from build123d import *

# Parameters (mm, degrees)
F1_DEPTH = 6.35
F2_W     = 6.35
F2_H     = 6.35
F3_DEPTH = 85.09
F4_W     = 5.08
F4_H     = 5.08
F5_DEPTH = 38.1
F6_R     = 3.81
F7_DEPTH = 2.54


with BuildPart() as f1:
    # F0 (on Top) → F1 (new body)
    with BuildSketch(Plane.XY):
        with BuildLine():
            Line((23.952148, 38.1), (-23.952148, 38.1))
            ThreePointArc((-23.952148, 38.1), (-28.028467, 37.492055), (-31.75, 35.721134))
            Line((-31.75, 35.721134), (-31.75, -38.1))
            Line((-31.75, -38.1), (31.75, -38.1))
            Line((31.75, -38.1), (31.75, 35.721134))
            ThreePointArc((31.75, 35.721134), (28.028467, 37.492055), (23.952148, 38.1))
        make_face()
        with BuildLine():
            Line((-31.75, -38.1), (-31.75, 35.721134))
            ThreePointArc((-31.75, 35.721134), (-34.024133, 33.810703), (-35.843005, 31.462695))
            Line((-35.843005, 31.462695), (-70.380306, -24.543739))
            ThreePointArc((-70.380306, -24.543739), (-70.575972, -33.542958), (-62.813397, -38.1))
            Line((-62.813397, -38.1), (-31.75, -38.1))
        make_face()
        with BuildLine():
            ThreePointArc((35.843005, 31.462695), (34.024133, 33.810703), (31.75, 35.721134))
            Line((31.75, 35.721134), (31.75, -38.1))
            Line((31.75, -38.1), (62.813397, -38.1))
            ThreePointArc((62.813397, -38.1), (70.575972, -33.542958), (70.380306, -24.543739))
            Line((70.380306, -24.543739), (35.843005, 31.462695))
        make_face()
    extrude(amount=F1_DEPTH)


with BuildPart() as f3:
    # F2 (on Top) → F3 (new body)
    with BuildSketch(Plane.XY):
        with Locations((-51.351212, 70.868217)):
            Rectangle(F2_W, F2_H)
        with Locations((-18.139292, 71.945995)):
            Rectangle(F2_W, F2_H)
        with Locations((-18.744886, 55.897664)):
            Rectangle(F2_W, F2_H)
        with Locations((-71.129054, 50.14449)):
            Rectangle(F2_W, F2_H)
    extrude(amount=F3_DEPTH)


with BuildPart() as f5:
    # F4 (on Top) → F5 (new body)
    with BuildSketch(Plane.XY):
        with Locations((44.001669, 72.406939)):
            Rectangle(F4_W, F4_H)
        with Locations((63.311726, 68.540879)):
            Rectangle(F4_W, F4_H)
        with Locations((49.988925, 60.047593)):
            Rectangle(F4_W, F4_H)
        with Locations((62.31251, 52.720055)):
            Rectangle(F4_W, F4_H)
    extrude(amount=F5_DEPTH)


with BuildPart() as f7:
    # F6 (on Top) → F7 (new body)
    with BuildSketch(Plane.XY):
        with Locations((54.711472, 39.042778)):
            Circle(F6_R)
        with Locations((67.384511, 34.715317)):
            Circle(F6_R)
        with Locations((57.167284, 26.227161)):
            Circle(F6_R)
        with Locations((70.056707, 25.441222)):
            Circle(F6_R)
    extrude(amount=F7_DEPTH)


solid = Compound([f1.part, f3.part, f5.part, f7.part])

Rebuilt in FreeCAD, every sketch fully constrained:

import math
import FreeCAD as App
import Part
import Sketcher
Q = App.Units.Quantity

doc = App.newDocument("Part")
params = doc.addObject("Spreadsheet::Sheet", "Params")
for row, (alias, value) in enumerate([
    ("sketch1_radius", "0.55 in"),
    ("sketch1_radius2", "0.35 in"),
    ("pad1_length", "0.25 in"),
    ("sketch2_width", "0.25 in"),
    ("pad2_length", "3.35 in"),
    ("sketch3_width", "0.2 in"),
    ("pad3_length", "1.5 in"),
    ("sketch4_diameter", "0.3 in"),
    ("pad4_length", "0.1 in"),
], start=1):
    params.set(f"A{row}", alias)
    params.set(f"B{row}", "=" + value)
    params.setAlias(f"B{row}", alias)

body = doc.addObject("PartDesign::Body", "Body")

sketch1 = body.newObject("Sketcher::SketchObject", "Sketch")
sketch1.AttachmentSupport = (doc.getObject("XY_Plane"), [""])
sketch1.MapMode = "FlatFace"
sketch1.addGeometry(Part.LineSegment(App.Vector(24, 38, 0), App.Vector(-24, 38, 0)), False)
sketch1.addGeometry(Part.ArcOfCircle(Part.Circle(App.Vector(-24, 24, 0), App.Vector(0, 0, 1), 14), math.radians(90), math.radians(124)), False)
sketch1.addGeometry(Part.ArcOfCircle(Part.Circle(App.Vector(-24, 24, 0), App.Vector(0, 0, 1), 14), math.radians(124), math.radians(148)), False)
sketch1.addGeometry(Part.LineSegment(App.Vector(-36, 31, 0), App.Vector(-70, -25, 0)), False)
sketch1.addGeometry(Part.ArcOfCircle(Part.Circle(App.Vector(-63, -29, 0), App.Vector(0, 0, 1), 9), math.radians(148), math.radians(270)), False)
sketch1.addGeometry(Part.LineSegment(App.Vector(-63, -38, 0), App.Vector(63, -38, 0)), False)
sketch1.addGeometry(Part.ArcOfCircle(Part.Circle(App.Vector(63, -29, 0), App.Vector(0, 0, 1), 9), math.radians(-90), math.radians(32)), False)
sketch1.addGeometry(Part.LineSegment(App.Vector(70, -25, 0), App.Vector(36, 31, 0)), False)
sketch1.addGeometry(Part.ArcOfCircle(Part.Circle(App.Vector(24, 24, 0), App.Vector(0, 0, 1), 14), math.radians(32), math.radians(56)), False)
sketch1.addGeometry(Part.ArcOfCircle(Part.Circle(App.Vector(24, 24, 0), App.Vector(0, 0, 1), 14), math.radians(56), math.radians(90)), False)
sketch1.addConstraint(Sketcher.Constraint("Tangent", 0, 2, 1, 1))
sketch1.addConstraint(Sketcher.Constraint("Tangent", 1, 2, 2, 1))
sketch1.addConstraint(Sketcher.Constraint("Tangent", 2, 2, 3, 1))
sketch1.addConstraint(Sketcher.Constraint("Tangent", 3, 2, 4, 1))
sketch1.addConstraint(Sketcher.Constraint("Tangent", 4, 2, 5, 1))
sketch1.addConstraint(Sketcher.Constraint("Tangent", 5, 2, 6, 1))
sketch1.addConstraint(Sketcher.Constraint("Tangent", 6, 2, 7, 1))
sketch1.addConstraint(Sketcher.Constraint("Tangent", 7, 2, 8, 1))
sketch1.addConstraint(Sketcher.Constraint("Tangent", 8, 2, 9, 1))
sketch1.addConstraint(Sketcher.Constraint("Tangent", 9, 2, 0, 1))
sketch1.addConstraint(Sketcher.Constraint("Horizontal", 0))
sketch1.addConstraint(Sketcher.Constraint("Horizontal", 5))
sketch1.addConstraint(Sketcher.Constraint("Equal", 4, 6))
sketch1.addConstraint(Sketcher.Constraint("Equal", 2, 8))
sketch1.addConstraint(Sketcher.Constraint("Equal", 1, 9))
sketch1.addConstraint(Sketcher.Constraint("Symmetric", 1, 3, 8, 3, -2))
sketch1.addConstraint(Sketcher.Constraint("Horizontal", 3, 2, 6, 2))
sketch1.addConstraint(Sketcher.Constraint("Horizontal", 1, 2, 8, 2))
sketch1.addConstraint(Sketcher.Constraint("Radius", 1, Q("0.55 in")))
sketch1.addConstraint(Sketcher.Constraint("Radius", 4, Q("0.35 in")))
sketch1.addConstraint(Sketcher.Constraint("DistanceY", -1, 1, 0, 2, Q("1.5 in")))
sketch1.addConstraint(Sketcher.Constraint("DistanceY", 4, 2, -1, 1, Q("1.5 in")))
sketch1.addConstraint(Sketcher.Constraint("DistanceX", 1, 2, -1, 1, Q("1.25 in")))
sketch1.addConstraint(Sketcher.Constraint("DistanceX", 1, 3, 8, 3, 47.904299))
sketch1.addConstraint(Sketcher.Constraint("DistanceX", 3, 2, 2, 2, 34.537301))
sketch1.setExpression("Constraints[18]", "Params.sketch1_radius")
sketch1.setExpression("Constraints[19]", "Params.sketch1_radius2")
pad1 = body.newObject("PartDesign::Pad", "Pad")
pad1.Profile = sketch1
pad1.setExpression("Length", "Params.pad1_length")
body2 = doc.addObject("PartDesign::Body", "Body001")
body2.AllowCompound = True

sketch2 = body2.newObject("Sketcher::SketchObject", "Sketch001")
sketch2.AttachmentSupport = (doc.getObject("XY_Plane001"), [""])
sketch2.MapMode = "FlatFace"
sketch2.addGeometry(Part.LineSegment(App.Vector(-55, 74, 0), App.Vector(-55, 68, 0)), False)
sketch2.addGeometry(Part.LineSegment(App.Vector(-55, 68, 0), App.Vector(-48, 68, 0)), False)
sketch2.addGeometry(Part.LineSegment(App.Vector(-48, 68, 0), App.Vector(-48, 74, 0)), False)
sketch2.addGeometry(Part.LineSegment(App.Vector(-48, 74, 0), App.Vector(-55, 74, 0)), False)
sketch2.addGeometry(Part.LineSegment(App.Vector(-21, 75, 0), App.Vector(-21, 69, 0)), False)
sketch2.addGeometry(Part.LineSegment(App.Vector(-21, 69, 0), App.Vector(-15, 69, 0)), False)
sketch2.addGeometry(Part.LineSegment(App.Vector(-15, 69, 0), App.Vector(-15, 75, 0)), False)
sketch2.addGeometry(Part.LineSegment(App.Vector(-15, 75, 0), App.Vector(-21, 75, 0)), False)
sketch2.addGeometry(Part.LineSegment(App.Vector(-22, 59, 0), App.Vector(-22, 53, 0)), False)
sketch2.addGeometry(Part.LineSegment(App.Vector(-22, 53, 0), App.Vector(-16, 53, 0)), False)
sketch2.addGeometry(Part.LineSegment(App.Vector(-16, 53, 0), App.Vector(-16, 59, 0)), False)
sketch2.addGeometry(Part.LineSegment(App.Vector(-16, 59, 0), App.Vector(-22, 59, 0)), False)
sketch2.addGeometry(Part.LineSegment(App.Vector(-74, 53, 0), App.Vector(-74, 47, 0)), False)
sketch2.addGeometry(Part.LineSegment(App.Vector(-74, 47, 0), App.Vector(-68, 47, 0)), False)
sketch2.addGeometry(Part.LineSegment(App.Vector(-68, 47, 0), App.Vector(-68, 53, 0)), False)
sketch2.addGeometry(Part.LineSegment(App.Vector(-68, 53, 0), App.Vector(-74, 53, 0)), False)
sketch2.addConstraint(Sketcher.Constraint("Coincident", 0, 2, 1, 1))
sketch2.addConstraint(Sketcher.Constraint("Coincident", 1, 2, 2, 1))
sketch2.addConstraint(Sketcher.Constraint("Coincident", 2, 2, 3, 1))
sketch2.addConstraint(Sketcher.Constraint("Coincident", 3, 2, 0, 1))
sketch2.addConstraint(Sketcher.Constraint("Coincident", 4, 2, 5, 1))
sketch2.addConstraint(Sketcher.Constraint("Coincident", 5, 2, 6, 1))
sketch2.addConstraint(Sketcher.Constraint("Coincident", 6, 2, 7, 1))
sketch2.addConstraint(Sketcher.Constraint("Coincident", 7, 2, 4, 1))
sketch2.addConstraint(Sketcher.Constraint("Coincident", 8, 2, 9, 1))
sketch2.addConstraint(Sketcher.Constraint("Coincident", 9, 2, 10, 1))
sketch2.addConstraint(Sketcher.Constraint("Coincident", 10, 2, 11, 1))
sketch2.addConstraint(Sketcher.Constraint("Coincident", 11, 2, 8, 1))
sketch2.addConstraint(Sketcher.Constraint("Coincident", 12, 2, 13, 1))
sketch2.addConstraint(Sketcher.Constraint("Coincident", 13, 2, 14, 1))
sketch2.addConstraint(Sketcher.Constraint("Coincident", 14, 2, 15, 1))
sketch2.addConstraint(Sketcher.Constraint("Coincident", 15, 2, 12, 1))
sketch2.addConstraint(Sketcher.Constraint("Vertical", 0))
sketch2.addConstraint(Sketcher.Constraint("Horizontal", 1))
sketch2.addConstraint(Sketcher.Constraint("Vertical", 2))
sketch2.addConstraint(Sketcher.Constraint("Horizontal", 3))
sketch2.addConstraint(Sketcher.Constraint("Vertical", 4))
sketch2.addConstraint(Sketcher.Constraint("Horizontal", 5))
sketch2.addConstraint(Sketcher.Constraint("Vertical", 6))
sketch2.addConstraint(Sketcher.Constraint("Horizontal", 7))
sketch2.addConstraint(Sketcher.Constraint("Vertical", 8))
sketch2.addConstraint(Sketcher.Constraint("Horizontal", 9))
sketch2.addConstraint(Sketcher.Constraint("Vertical", 10))
sketch2.addConstraint(Sketcher.Constraint("Horizontal", 11))
sketch2.addConstraint(Sketcher.Constraint("Vertical", 12))
sketch2.addConstraint(Sketcher.Constraint("Horizontal", 13))
sketch2.addConstraint(Sketcher.Constraint("Vertical", 14))
sketch2.addConstraint(Sketcher.Constraint("Horizontal", 15))
sketch2.addConstraint(Sketcher.Constraint("Equal", 3, 5))
sketch2.addConstraint(Sketcher.Constraint("Equal", 7, 9))
sketch2.addConstraint(Sketcher.Constraint("Equal", 11, 13))
sketch2.addConstraint(Sketcher.Constraint("Equal", 15, 0))
sketch2.addConstraint(Sketcher.Constraint("Equal", 2, 4))
sketch2.addConstraint(Sketcher.Constraint("Equal", 6, 8))
sketch2.addConstraint(Sketcher.Constraint("Equal", 10, 12))
sketch2.addConstraint(Sketcher.Constraint("DistanceX", 1, 1, 1, 2, Q("0.25 in")))
sketch2.addConstraint(Sketcher.Constraint("DistanceX", 4, 2, -1, 1, 21.314292))
sketch2.addConstraint(Sketcher.Constraint("DistanceY", -1, 1, 12, 2, 46.96949))
sketch2.addConstraint(Sketcher.Constraint("DistanceX", 1, 2, 4, 2, 26.86192))
sketch2.addConstraint(Sketcher.Constraint("DistanceY", 4, 2, 2, 2, 5.272222))
sketch2.addConstraint(Sketcher.Constraint("DistanceY", 8, 2, 4, 2, 16.048331))
sketch2.addConstraint(Sketcher.Constraint("DistanceX", 12, 2, 0, 2, 19.777842))
sketch2.addConstraint(Sketcher.Constraint("DistanceY", -1, 1, 0, 2, 67.693217))
sketch2.addConstraint(Sketcher.Constraint("DistanceX", 8, 2, -1, 1, 21.919886))
sketch2.setExpression("Constraints[39]", "Params.sketch2_width")
pad2 = body2.newObject("PartDesign::Pad", "Pad001")
pad2.Profile = sketch2
pad2.setExpression("Length", "Params.pad2_length")
body3 = doc.addObject("PartDesign::Body", "Body002")
body3.AllowCompound = True

sketch3 = body3.newObject("Sketcher::SketchObject", "Sketch002")
sketch3.AttachmentSupport = (doc.getObject("XY_Plane002"), [""])
sketch3.MapMode = "FlatFace"
sketch3.addGeometry(Part.LineSegment(App.Vector(41, 75, 0), App.Vector(41, 70, 0)), False)
sketch3.addGeometry(Part.LineSegment(App.Vector(41, 70, 0), App.Vector(47, 70, 0)), False)
sketch3.addGeometry(Part.LineSegment(App.Vector(47, 70, 0), App.Vector(47, 75, 0)), False)
sketch3.addGeometry(Part.LineSegment(App.Vector(47, 75, 0), App.Vector(41, 75, 0)), False)
sketch3.addGeometry(Part.LineSegment(App.Vector(61, 71, 0), App.Vector(61, 66, 0)), False)
sketch3.addGeometry(Part.LineSegment(App.Vector(61, 66, 0), App.Vector(66, 66, 0)), False)
sketch3.addGeometry(Part.LineSegment(App.Vector(66, 66, 0), App.Vector(66, 71, 0)), False)
sketch3.addGeometry(Part.LineSegment(App.Vector(66, 71, 0), App.Vector(61, 71, 0)), False)
sketch3.addGeometry(Part.LineSegment(App.Vector(47, 63, 0), App.Vector(47, 58, 0)), False)
sketch3.addGeometry(Part.LineSegment(App.Vector(47, 58, 0), App.Vector(53, 58, 0)), False)
sketch3.addGeometry(Part.LineSegment(App.Vector(53, 58, 0), App.Vector(53, 63, 0)), False)
sketch3.addGeometry(Part.LineSegment(App.Vector(53, 63, 0), App.Vector(47, 63, 0)), False)
sketch3.addGeometry(Part.LineSegment(App.Vector(60, 55, 0), App.Vector(60, 50, 0)), False)
sketch3.addGeometry(Part.LineSegment(App.Vector(60, 50, 0), App.Vector(65, 50, 0)), False)
sketch3.addGeometry(Part.LineSegment(App.Vector(65, 50, 0), App.Vector(65, 55, 0)), False)
sketch3.addGeometry(Part.LineSegment(App.Vector(65, 55, 0), App.Vector(60, 55, 0)), False)
sketch3.addConstraint(Sketcher.Constraint("Coincident", 0, 2, 1, 1))
sketch3.addConstraint(Sketcher.Constraint("Coincident", 1, 2, 2, 1))
sketch3.addConstraint(Sketcher.Constraint("Coincident", 2, 2, 3, 1))
sketch3.addConstraint(Sketcher.Constraint("Coincident", 3, 2, 0, 1))
sketch3.addConstraint(Sketcher.Constraint("Coincident", 4, 2, 5, 1))
sketch3.addConstraint(Sketcher.Constraint("Coincident", 5, 2, 6, 1))
sketch3.addConstraint(Sketcher.Constraint("Coincident", 6, 2, 7, 1))
sketch3.addConstraint(Sketcher.Constraint("Coincident", 7, 2, 4, 1))
sketch3.addConstraint(Sketcher.Constraint("Coincident", 8, 2, 9, 1))
sketch3.addConstraint(Sketcher.Constraint("Coincident", 9, 2, 10, 1))
sketch3.addConstraint(Sketcher.Constraint("Coincident", 10, 2, 11, 1))
sketch3.addConstraint(Sketcher.Constraint("Coincident", 11, 2, 8, 1))
sketch3.addConstraint(Sketcher.Constraint("Coincident", 12, 2, 13, 1))
sketch3.addConstraint(Sketcher.Constraint("Coincident", 13, 2, 14, 1))
sketch3.addConstraint(Sketcher.Constraint("Coincident", 14, 2, 15, 1))
sketch3.addConstraint(Sketcher.Constraint("Coincident", 15, 2, 12, 1))
sketch3.addConstraint(Sketcher.Constraint("Vertical", 0))
sketch3.addConstraint(Sketcher.Constraint("Horizontal", 1))
sketch3.addConstraint(Sketcher.Constraint("Vertical", 2))
sketch3.addConstraint(Sketcher.Constraint("Horizontal", 3))
sketch3.addConstraint(Sketcher.Constraint("Vertical", 4))
sketch3.addConstraint(Sketcher.Constraint("Horizontal", 5))
sketch3.addConstraint(Sketcher.Constraint("Vertical", 6))
sketch3.addConstraint(Sketcher.Constraint("Horizontal", 7))
sketch3.addConstraint(Sketcher.Constraint("Vertical", 8))
sketch3.addConstraint(Sketcher.Constraint("Horizontal", 9))
sketch3.addConstraint(Sketcher.Constraint("Vertical", 10))
sketch3.addConstraint(Sketcher.Constraint("Horizontal", 11))
sketch3.addConstraint(Sketcher.Constraint("Vertical", 12))
sketch3.addConstraint(Sketcher.Constraint("Horizontal", 13))
sketch3.addConstraint(Sketcher.Constraint("Vertical", 14))
sketch3.addConstraint(Sketcher.Constraint("Horizontal", 15))
sketch3.addConstraint(Sketcher.Constraint("Equal", 3, 5))
sketch3.addConstraint(Sketcher.Constraint("Equal", 7, 9))
sketch3.addConstraint(Sketcher.Constraint("Equal", 11, 13))
sketch3.addConstraint(Sketcher.Constraint("Equal", 15, 0))
sketch3.addConstraint(Sketcher.Constraint("Equal", 2, 4))
sketch3.addConstraint(Sketcher.Constraint("Equal", 6, 8))
sketch3.addConstraint(Sketcher.Constraint("Equal", 10, 12))
sketch3.addConstraint(Sketcher.Constraint("DistanceX", 1, 1, 1, 2, Q("0.2 in")))
sketch3.addConstraint(Sketcher.Constraint("DistanceX", 8, 2, 4, 2, 13.322801))
sketch3.addConstraint(Sketcher.Constraint("DistanceX", -1, 1, 0, 2, 41.461669))
sketch3.addConstraint(Sketcher.Constraint("DistanceY", -1, 1, 0, 2, 69.866939))
sketch3.addConstraint(Sketcher.Constraint("DistanceY", -1, 1, 4, 2, 66.000879))
sketch3.addConstraint(Sketcher.Constraint("DistanceX", -1, 1, 12, 2, 59.77251))
sketch3.addConstraint(Sketcher.Constraint("DistanceX", -1, 1, 4, 2, 60.771726))
sketch3.addConstraint(Sketcher.Constraint("DistanceY", -1, 1, 8, 2, 57.507593))
sketch3.addConstraint(Sketcher.Constraint("DistanceY", -1, 1, 12, 2, 50.180055))
sketch3.setExpression("Constraints[39]", "Params.sketch3_width")
pad3 = body3.newObject("PartDesign::Pad", "Pad002")
pad3.Profile = sketch3
pad3.setExpression("Length", "Params.pad3_length")
body4 = doc.addObject("PartDesign::Body", "Body003")
body4.AllowCompound = True

sketch4 = body4.newObject("Sketcher::SketchObject", "Sketch003")
sketch4.AttachmentSupport = (doc.getObject("XY_Plane003"), [""])
sketch4.MapMode = "FlatFace"
sketch4.addGeometry(Part.Circle(App.Vector(54.7, 39, 0), App.Vector(0, 0, 1), 3.8), False)
sketch4.addGeometry(Part.Circle(App.Vector(67.4, 34.7, 0), App.Vector(0, 0, 1), 3.8), False)
sketch4.addGeometry(Part.Circle(App.Vector(57.2, 26.2, 0), App.Vector(0, 0, 1), 3.8), False)
sketch4.addGeometry(Part.Circle(App.Vector(70.1, 25.4, 0), App.Vector(0, 0, 1), 3.8), False)
sketch4.addConstraint(Sketcher.Constraint("Equal", 0, 1))
sketch4.addConstraint(Sketcher.Constraint("Equal", 1, 2))
sketch4.addConstraint(Sketcher.Constraint("Equal", 2, 3))
sketch4.addConstraint(Sketcher.Constraint("Diameter", 0, Q("0.3 in")))
sketch4.addConstraint(Sketcher.Constraint("DistanceX", -1, 1, 1, 3, 67.384511))
sketch4.addConstraint(Sketcher.Constraint("DistanceY", -1, 1, 2, 3, 26.227161))
sketch4.addConstraint(Sketcher.Constraint("DistanceY", -1, 1, 3, 3, 25.441222))
sketch4.addConstraint(Sketcher.Constraint("DistanceX", 0, 3, 1, 3, 12.673039))
sketch4.addConstraint(Sketcher.Constraint("DistanceY", 1, 3, 0, 3, 4.327461))
sketch4.addConstraint(Sketcher.Constraint("DistanceY", -1, 1, 0, 3, 39.042778))
sketch4.addConstraint(Sketcher.Constraint("DistanceX", -1, 1, 2, 3, 57.167284))
sketch4.addConstraint(Sketcher.Constraint("DistanceX", -1, 1, 3, 3, 70.056707))
sketch4.setExpression("Constraints[3]", "Params.sketch4_diameter")
pad4 = body4.newObject("PartDesign::Pad", "Pad003")
pad4.Profile = sketch4
pad4.setExpression("Length", "Params.pad4_length")

doc.recompute()
